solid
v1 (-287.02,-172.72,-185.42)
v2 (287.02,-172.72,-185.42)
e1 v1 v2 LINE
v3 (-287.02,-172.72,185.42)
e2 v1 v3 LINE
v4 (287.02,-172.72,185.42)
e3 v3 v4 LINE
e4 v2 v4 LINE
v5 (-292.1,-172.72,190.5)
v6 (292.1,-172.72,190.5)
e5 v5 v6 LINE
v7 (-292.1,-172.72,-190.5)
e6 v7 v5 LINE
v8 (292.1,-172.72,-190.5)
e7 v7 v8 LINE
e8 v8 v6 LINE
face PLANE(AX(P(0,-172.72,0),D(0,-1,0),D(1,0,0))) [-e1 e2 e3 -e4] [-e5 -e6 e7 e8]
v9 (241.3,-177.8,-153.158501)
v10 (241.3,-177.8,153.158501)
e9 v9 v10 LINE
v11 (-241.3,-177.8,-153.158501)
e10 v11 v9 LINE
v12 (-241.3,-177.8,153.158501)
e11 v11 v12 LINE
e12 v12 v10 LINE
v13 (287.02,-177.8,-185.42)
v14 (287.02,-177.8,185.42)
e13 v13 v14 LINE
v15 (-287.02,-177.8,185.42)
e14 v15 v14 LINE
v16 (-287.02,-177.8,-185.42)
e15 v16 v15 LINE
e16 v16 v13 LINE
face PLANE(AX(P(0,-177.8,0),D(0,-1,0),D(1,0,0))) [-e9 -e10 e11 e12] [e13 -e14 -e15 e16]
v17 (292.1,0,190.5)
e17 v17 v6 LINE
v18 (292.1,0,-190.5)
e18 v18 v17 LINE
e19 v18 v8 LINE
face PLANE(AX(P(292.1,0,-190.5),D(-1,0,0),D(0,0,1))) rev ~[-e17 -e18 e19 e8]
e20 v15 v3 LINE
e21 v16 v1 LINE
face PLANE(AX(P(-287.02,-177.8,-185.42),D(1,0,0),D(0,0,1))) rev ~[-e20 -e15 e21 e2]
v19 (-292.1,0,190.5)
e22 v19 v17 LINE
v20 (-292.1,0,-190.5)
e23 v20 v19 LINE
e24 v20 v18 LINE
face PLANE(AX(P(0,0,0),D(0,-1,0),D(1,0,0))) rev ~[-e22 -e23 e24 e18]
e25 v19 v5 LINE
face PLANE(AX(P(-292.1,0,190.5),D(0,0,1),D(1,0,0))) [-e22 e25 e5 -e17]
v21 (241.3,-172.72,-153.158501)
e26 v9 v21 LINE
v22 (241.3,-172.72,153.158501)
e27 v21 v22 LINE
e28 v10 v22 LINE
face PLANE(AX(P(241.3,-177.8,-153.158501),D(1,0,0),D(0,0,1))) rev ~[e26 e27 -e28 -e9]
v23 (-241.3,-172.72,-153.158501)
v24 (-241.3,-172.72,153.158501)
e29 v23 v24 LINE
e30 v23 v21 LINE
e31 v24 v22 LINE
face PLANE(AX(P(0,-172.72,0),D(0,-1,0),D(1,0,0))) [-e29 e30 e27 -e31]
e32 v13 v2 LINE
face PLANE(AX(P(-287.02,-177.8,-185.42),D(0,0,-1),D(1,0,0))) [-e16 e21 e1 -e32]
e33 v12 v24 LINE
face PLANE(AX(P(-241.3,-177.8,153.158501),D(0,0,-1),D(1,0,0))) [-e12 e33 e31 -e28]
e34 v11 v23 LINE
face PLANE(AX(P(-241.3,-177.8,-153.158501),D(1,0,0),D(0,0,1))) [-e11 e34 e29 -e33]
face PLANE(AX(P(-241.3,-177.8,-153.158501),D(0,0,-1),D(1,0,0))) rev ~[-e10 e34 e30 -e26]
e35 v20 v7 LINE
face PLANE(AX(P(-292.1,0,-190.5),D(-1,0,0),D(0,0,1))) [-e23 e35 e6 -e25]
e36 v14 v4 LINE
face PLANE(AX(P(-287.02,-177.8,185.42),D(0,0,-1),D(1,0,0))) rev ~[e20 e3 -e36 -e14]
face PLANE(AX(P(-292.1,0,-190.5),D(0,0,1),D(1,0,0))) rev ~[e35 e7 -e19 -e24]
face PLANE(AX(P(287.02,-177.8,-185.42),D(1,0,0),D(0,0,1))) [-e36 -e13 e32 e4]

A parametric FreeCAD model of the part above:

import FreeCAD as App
import Part
import Sketcher
from FreeCAD import Vector
Q = App.Units.Quantity

doc = App.newDocument("Part")
body = doc.addObject("PartDesign::Body", "Body")

sketch1 = body.newObject("Sketcher::SketchObject", "Sketch")
sketch1.AttachmentSupport = (doc.getObject("XZ_Plane"), [""])
sketch1.MapMode = "FlatFace"
sketch1.addGeometry([
    Part.LineSegment(Vector(-292, 190, 0), Vector(-292, -190, 0)),
    Part.LineSegment(Vector(-292, -190, 0), Vector(292, -190, 0)),
    Part.LineSegment(Vector(292, -190, 0), Vector(292, 190, 0)),
    Part.LineSegment(Vector(292, 190, 0), Vector(-292, 190, 0)),
], False)
sketch1.addConstraint([
    Sketcher.Constraint("Coincident", 0, 2, 1, 1),
    Sketcher.Constraint("Coincident", 1, 2, 2, 1),
    Sketcher.Constraint("Coincident", 2, 2, 3, 1),
    Sketcher.Constraint("Coincident", 3, 2, 0, 1),
    Sketcher.Constraint("Vertical", 0),
    Sketcher.Constraint("Horizontal", 1),
    Sketcher.Constraint("Vertical", 2),
    Sketcher.Constraint("Horizontal", 3),
    Sketcher.Constraint("Symmetric", 0, 2, 2, 2, -1, 1),
    Sketcher.Constraint("DistanceX", 1, 1, 1, 2, Q("23 in")),
    Sketcher.Constraint("DistanceY", 0, 2, 0, 1, Q("15 in")),
])
pad1 = body.newObject("PartDesign::Pad", "Pad")
pad1.Profile = sketch1
pad1.Length = Q("7 in")

sketch2 = body.newObject("Sketcher::SketchObject", "Sketch001")
sketch2.AttachmentSupport = (doc.getObject("XZ_Plane"), [""])
sketch2.MapMode = "FlatFace"
sketch2.AttachmentOffset = App.Placement(Vector(0, 0, 7 * 25.4), App.Rotation())
sketch2.addGeometry([
    Part.LineSegment(Vector(-292, 190, 0), Vector(-292, -190, 0)),
    Part.LineSegment(Vector(-292, -190, 0), Vector(292, -190, 0)),
    Part.LineSegment(Vector(292, -190, 0), Vector(292, 190, 0)),
    Part.LineSegment(Vector(292, 190, 0), Vector(-292, 190, 0)),
    Part.LineSegment(Vector(287, -185, 0), Vector(-287, -185, 0)),
    Part.LineSegment(Vector(-287, -185, 0), Vector(-287, 185, 0)),
    Part.LineSegment(Vector(-287, 185, 0), Vector(287, 185, 0)),
    Part.LineSegment(Vector(287, 185, 0), Vector(287, -185, 0)),
    Part.LineSegment(Vector(-241, 153, 0), Vector(-241, -153, 0)),
    Part.LineSegment(Vector(-241, -153, 0), Vector(241, -153, 0)),
    Part.LineSegment(Vector(241, -153, 0), Vector(241, 153, 0)),
    Part.LineSegment(Vector(241, 153, 0), Vector(-241, 153, 0)),
], False)
sketch2.addConstraint([
    Sketcher.Constraint("Coincident", 0, 2, 1, 1),
    Sketcher.Constraint("Coincident", 1, 2, 2, 1),
    Sketcher.Constraint("Coincident", 2, 2, 3, 1),
    Sketcher.Constraint("Coincident", 3, 2, 0, 1),
    Sketcher.Constraint("Coincident", 4, 2, 5, 1),
    Sketcher.Constraint("Coincident", 5, 2, 6, 1),
    Sketcher.Constraint("Coincident", 6, 2, 7, 1),
    Sketcher.Constraint("Coincident", 7, 2, 4, 1),
    Sketcher.Constraint("Coincident", 8, 2, 9, 1),
    Sketcher.Constraint("Coincident", 9, 2, 10, 1),
    Sketcher.Constraint("Coincident", 10, 2, 11, 1),
    Sketcher.Constraint("Coincident", 11, 2, 8, 1),
    Sketcher.Constraint("Vertical", 0),
    Sketcher.Constraint("Horizontal", 1),
    Sketcher.Constraint("Vertical", 2),
    Sketcher.Constraint("Horizontal", 3),
    Sketcher.Constraint("Horizontal", 4),
    Sketcher.Constraint("Vertical", 5),
    Sketcher.Constraint("Horizontal", 6),
    Sketcher.Constraint("Vertical", 7),
    Sketcher.Constraint("Vertical", 8),
    Sketcher.Constraint("Horizontal", 9),
    Sketcher.Constraint("Vertical", 10),
    Sketcher.Constraint("Horizontal", 11),
    Sketcher.Constraint("Symmetric", 0, 2, 2, 2, -1, 1),
    Sketcher.Constraint("Symmetric", 4, 2, 6, 2, -1, 1),
    Sketcher.Constraint("Symmetric", 8, 2, 10, 2, -1, 1),
    Sketcher.Constraint("DistanceX", 1, 1, 1, 2, Q("23 in")),
    Sketcher.Constraint("DistanceX", 9, 1, 9, 2, Q("19 in")),
    Sketcher.Constraint("DistanceY", 0, 2, 0, 1, Q("15 in")),
    Sketcher.Constraint("DistanceX", 4, 2, 4, 1, Q("22.6 in")),
    Sketcher.Constraint("DistanceY", 5, 1, 5, 2, Q("14.6 in")),
    Sketcher.Constraint("DistanceY", 8, 2, 8, 1, 306.317002),
])
pocket1 = body.newObject("PartDesign::Pocket", "Pocket")
pocket1.Profile = sketch2
pocket1.Length = Q("0.2 in")

doc.recompute()
